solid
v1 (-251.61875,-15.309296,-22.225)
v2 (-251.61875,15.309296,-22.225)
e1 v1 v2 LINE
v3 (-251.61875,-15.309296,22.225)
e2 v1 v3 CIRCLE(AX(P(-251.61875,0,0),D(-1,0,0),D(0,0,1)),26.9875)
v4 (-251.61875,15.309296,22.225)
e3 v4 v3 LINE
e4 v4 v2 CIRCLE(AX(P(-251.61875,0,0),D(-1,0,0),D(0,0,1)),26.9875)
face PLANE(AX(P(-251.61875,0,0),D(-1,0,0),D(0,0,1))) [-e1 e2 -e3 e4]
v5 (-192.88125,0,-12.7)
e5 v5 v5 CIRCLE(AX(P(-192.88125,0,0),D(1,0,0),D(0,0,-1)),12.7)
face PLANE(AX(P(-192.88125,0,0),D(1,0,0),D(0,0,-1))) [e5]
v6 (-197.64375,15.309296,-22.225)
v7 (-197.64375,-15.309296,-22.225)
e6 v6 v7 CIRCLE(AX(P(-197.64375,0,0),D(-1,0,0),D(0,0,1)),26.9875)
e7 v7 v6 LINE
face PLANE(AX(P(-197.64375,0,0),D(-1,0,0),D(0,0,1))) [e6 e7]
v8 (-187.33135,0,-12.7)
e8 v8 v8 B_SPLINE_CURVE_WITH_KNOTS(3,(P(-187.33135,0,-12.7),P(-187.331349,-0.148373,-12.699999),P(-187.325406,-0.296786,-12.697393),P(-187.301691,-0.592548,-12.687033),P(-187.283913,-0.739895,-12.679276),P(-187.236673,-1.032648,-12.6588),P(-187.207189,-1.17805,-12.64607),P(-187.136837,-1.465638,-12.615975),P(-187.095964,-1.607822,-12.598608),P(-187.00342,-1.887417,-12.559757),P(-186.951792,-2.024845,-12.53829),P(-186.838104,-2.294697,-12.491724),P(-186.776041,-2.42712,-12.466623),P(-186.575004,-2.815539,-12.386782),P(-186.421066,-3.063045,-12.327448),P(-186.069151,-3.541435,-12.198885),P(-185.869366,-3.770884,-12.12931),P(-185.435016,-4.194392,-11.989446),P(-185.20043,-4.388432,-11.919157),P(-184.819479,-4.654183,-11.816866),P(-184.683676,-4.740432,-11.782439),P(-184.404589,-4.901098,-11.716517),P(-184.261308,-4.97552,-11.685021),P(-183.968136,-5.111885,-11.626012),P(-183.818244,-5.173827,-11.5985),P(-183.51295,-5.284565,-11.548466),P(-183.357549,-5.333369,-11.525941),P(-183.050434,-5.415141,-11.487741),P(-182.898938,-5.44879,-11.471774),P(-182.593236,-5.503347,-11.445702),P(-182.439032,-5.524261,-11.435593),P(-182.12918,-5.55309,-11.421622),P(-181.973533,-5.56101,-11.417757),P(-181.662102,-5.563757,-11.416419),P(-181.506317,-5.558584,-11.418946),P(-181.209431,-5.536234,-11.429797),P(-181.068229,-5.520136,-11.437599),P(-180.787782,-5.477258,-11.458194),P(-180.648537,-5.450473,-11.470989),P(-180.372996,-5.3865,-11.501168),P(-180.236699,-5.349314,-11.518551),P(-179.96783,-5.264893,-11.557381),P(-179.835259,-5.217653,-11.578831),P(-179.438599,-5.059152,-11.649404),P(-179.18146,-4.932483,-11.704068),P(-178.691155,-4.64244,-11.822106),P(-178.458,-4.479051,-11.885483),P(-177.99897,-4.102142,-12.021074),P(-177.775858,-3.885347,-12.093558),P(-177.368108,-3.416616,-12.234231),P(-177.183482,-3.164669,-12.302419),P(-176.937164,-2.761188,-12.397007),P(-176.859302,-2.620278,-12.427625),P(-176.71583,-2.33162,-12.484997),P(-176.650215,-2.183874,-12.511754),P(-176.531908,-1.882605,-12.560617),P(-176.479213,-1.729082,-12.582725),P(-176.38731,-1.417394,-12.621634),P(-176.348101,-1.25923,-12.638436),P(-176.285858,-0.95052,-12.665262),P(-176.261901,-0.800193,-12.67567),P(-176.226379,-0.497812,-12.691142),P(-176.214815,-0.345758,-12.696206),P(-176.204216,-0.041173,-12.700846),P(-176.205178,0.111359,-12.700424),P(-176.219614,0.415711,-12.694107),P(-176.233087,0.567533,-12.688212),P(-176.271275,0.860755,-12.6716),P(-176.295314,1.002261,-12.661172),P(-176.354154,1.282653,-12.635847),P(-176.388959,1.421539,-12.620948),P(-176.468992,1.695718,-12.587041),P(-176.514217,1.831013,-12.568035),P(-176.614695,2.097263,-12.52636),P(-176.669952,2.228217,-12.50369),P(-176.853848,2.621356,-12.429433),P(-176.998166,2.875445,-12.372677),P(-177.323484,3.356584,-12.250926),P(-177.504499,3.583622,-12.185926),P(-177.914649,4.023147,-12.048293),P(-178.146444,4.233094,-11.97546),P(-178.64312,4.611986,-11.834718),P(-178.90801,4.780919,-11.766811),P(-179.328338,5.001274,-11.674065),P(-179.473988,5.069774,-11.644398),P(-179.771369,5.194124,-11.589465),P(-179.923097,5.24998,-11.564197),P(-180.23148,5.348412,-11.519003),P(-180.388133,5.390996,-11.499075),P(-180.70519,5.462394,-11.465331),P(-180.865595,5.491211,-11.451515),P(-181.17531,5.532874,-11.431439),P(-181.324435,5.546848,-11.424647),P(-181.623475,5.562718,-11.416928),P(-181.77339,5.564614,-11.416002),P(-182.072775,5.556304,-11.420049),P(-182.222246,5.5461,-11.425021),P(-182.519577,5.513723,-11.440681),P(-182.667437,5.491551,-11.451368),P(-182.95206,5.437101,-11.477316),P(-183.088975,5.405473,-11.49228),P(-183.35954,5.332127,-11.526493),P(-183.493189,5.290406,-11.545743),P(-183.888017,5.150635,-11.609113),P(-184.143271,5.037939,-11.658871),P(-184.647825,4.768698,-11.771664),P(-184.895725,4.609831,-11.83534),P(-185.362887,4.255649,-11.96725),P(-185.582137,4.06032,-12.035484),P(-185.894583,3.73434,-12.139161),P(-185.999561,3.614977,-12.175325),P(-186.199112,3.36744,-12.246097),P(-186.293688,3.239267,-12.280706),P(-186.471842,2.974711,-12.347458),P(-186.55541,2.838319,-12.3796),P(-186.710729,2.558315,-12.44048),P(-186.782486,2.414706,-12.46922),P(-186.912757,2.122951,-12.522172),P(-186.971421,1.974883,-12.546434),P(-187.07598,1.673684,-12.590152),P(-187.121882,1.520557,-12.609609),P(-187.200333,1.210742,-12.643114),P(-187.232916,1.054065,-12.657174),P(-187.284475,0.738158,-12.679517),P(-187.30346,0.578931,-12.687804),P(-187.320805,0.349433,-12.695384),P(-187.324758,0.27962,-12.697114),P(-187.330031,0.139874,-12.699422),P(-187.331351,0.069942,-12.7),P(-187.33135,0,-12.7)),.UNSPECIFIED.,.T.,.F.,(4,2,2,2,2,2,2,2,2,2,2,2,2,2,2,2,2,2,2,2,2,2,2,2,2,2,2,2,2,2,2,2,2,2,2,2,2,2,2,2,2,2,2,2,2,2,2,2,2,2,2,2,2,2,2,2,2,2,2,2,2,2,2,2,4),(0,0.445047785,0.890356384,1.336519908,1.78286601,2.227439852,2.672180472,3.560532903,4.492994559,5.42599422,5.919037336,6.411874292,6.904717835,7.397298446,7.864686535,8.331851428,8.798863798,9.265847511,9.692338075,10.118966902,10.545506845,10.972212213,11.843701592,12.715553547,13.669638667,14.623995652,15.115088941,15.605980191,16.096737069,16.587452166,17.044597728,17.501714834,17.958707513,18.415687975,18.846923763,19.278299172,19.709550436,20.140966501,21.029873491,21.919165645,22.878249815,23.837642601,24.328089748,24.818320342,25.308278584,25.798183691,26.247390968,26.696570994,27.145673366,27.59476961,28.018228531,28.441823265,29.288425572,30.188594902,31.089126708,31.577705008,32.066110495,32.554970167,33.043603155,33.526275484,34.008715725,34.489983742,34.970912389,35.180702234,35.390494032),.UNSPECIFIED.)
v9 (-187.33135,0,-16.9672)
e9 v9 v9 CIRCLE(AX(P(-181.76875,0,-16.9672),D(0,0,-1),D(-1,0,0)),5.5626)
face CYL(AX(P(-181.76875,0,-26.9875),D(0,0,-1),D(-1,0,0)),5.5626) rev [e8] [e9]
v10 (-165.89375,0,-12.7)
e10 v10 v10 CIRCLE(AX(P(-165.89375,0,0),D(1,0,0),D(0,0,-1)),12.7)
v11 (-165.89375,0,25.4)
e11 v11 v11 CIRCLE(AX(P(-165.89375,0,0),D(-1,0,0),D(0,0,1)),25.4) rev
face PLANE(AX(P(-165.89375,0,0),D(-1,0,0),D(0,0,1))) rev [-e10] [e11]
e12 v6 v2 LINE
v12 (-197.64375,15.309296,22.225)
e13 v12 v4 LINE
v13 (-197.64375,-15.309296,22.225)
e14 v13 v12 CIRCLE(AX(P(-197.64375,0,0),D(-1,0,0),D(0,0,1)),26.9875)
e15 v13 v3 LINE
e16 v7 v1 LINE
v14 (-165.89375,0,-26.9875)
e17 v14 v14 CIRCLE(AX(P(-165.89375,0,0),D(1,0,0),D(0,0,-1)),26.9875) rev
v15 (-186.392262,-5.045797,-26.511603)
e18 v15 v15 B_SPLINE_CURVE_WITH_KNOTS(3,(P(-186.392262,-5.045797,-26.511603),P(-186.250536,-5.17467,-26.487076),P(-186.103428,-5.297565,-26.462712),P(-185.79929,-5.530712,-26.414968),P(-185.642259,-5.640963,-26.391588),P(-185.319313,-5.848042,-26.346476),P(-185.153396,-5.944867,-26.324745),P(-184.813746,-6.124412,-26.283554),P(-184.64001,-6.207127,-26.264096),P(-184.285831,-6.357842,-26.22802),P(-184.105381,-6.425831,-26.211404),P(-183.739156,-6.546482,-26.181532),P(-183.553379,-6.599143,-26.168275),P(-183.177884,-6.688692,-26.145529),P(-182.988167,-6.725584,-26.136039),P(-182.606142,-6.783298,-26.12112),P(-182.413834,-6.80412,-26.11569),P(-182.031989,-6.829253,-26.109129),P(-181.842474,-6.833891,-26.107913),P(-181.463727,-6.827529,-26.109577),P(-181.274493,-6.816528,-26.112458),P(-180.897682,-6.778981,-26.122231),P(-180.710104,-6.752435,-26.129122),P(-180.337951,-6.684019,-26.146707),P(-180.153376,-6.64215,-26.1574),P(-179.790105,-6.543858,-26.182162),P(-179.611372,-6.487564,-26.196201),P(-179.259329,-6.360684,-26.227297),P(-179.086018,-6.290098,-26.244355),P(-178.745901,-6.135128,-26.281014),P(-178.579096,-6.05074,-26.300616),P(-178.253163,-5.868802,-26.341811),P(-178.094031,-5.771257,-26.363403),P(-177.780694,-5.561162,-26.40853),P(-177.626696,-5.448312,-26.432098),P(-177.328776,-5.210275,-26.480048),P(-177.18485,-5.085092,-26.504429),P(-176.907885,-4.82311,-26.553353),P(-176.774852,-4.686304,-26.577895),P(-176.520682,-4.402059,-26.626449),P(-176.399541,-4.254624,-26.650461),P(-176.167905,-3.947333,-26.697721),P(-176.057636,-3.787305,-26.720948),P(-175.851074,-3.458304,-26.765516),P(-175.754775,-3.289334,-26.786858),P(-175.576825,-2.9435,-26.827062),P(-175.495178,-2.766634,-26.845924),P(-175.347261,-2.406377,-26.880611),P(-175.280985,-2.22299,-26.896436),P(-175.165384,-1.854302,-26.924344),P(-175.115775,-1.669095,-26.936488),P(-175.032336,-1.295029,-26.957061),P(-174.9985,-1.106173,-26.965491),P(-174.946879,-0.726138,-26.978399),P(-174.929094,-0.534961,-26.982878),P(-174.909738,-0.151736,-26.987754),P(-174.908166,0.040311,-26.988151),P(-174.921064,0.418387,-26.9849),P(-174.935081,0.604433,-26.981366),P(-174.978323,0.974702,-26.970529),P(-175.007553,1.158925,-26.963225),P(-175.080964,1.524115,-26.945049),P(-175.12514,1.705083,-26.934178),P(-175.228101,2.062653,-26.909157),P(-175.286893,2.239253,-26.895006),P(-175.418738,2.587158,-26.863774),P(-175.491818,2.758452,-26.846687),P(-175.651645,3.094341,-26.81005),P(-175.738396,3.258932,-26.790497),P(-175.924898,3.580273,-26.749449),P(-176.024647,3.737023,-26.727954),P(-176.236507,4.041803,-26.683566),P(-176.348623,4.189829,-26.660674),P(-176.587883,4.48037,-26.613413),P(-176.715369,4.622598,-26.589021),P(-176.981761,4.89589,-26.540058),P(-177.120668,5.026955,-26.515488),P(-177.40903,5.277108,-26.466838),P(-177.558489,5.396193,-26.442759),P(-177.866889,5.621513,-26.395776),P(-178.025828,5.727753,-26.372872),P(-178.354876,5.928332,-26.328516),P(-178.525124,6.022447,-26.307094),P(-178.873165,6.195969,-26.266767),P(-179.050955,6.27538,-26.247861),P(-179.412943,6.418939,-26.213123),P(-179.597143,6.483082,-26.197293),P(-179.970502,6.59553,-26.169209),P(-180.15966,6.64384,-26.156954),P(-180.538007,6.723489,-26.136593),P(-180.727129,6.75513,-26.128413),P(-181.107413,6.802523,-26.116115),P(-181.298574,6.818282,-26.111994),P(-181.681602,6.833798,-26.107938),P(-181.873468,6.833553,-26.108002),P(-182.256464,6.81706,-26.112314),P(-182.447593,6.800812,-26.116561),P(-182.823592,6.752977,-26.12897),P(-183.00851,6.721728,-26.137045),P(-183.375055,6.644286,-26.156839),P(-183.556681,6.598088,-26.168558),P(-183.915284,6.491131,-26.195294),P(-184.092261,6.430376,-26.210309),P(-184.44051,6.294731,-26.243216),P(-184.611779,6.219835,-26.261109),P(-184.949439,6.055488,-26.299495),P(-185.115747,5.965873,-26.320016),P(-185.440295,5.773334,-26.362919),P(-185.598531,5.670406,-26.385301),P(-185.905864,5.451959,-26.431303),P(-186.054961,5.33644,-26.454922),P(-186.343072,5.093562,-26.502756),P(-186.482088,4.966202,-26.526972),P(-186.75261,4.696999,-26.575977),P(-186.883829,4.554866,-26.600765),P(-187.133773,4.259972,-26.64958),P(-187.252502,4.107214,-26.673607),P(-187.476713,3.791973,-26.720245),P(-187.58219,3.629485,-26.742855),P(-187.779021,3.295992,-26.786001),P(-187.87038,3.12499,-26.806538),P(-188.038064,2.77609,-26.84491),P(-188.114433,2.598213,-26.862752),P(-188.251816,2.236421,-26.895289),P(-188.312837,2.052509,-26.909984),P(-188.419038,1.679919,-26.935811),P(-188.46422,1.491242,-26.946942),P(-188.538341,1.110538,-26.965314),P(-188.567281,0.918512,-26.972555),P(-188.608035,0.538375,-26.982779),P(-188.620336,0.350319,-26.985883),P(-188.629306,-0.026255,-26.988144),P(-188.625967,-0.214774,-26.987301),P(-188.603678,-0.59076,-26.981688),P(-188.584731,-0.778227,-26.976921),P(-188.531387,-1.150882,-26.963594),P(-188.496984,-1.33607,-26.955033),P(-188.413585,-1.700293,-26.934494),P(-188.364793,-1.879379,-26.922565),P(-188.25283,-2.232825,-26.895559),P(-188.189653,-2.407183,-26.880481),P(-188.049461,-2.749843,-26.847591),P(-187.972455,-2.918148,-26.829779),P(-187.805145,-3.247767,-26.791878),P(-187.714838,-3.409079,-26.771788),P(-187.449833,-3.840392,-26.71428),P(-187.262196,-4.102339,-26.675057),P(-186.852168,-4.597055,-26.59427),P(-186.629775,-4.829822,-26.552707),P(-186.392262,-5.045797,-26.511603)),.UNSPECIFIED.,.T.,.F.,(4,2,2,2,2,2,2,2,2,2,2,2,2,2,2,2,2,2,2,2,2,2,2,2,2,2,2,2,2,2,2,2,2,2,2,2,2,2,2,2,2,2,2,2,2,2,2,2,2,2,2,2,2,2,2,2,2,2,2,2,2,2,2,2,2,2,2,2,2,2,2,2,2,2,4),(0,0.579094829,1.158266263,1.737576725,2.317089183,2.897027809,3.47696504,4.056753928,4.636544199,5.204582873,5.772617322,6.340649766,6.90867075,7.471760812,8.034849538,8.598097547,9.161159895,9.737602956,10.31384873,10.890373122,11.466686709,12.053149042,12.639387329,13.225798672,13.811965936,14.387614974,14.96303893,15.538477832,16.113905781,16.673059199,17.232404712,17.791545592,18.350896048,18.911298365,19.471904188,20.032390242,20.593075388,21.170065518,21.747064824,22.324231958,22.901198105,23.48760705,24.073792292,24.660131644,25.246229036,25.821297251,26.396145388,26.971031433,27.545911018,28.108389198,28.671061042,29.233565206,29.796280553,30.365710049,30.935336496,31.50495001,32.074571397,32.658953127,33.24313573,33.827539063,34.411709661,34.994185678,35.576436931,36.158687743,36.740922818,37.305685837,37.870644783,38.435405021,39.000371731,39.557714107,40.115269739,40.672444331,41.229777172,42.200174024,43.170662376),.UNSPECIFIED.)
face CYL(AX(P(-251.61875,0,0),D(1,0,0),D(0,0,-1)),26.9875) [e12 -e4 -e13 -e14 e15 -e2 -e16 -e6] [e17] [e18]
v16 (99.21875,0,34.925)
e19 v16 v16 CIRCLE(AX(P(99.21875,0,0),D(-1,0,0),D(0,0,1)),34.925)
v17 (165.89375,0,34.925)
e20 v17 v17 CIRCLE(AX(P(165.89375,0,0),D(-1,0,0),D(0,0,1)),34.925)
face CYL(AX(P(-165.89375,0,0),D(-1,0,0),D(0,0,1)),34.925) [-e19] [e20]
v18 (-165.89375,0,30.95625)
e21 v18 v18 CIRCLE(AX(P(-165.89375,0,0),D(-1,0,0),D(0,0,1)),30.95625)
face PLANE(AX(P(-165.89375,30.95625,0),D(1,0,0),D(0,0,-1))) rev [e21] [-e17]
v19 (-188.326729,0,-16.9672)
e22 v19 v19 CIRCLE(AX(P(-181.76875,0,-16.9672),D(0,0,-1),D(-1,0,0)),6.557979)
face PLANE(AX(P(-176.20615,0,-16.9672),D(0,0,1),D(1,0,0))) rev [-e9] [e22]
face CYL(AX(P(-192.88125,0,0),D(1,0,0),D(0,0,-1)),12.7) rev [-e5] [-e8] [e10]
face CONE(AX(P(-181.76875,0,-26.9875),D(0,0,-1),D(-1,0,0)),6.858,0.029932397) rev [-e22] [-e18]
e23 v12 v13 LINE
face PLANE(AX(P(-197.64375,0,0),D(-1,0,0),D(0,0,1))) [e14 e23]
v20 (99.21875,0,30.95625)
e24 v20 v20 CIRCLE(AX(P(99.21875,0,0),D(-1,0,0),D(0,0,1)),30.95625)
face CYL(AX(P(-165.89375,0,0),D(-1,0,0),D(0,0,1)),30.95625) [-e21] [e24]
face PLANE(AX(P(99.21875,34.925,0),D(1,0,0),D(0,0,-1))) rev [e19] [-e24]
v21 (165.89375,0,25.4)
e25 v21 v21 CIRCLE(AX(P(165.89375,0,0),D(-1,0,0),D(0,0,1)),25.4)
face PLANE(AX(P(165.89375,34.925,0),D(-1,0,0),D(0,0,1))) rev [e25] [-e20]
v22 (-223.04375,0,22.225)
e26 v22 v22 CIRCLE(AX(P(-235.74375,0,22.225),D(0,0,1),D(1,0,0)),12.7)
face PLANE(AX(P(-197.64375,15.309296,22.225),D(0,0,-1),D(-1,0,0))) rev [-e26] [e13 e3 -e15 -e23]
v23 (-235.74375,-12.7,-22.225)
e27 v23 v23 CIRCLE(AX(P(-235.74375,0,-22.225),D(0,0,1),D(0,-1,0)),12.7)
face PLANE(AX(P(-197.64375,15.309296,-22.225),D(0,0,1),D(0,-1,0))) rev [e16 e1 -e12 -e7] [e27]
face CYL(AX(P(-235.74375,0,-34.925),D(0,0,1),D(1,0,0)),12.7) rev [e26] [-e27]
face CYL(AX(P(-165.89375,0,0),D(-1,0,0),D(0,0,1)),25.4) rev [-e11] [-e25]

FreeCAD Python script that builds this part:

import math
import FreeCAD as App
import Part
import Sketcher

V = App.Vector
Q = App.Units.Quantity


def add_polygon(sketch, points):
    """Adds a closed chain of lines whose ends are joined by coincident constraints."""
    first, n = sketch.GeometryCount, len(points)
    for a, b in zip(points, points[1:] + points[:1]):
        sketch.addGeometry(Part.LineSegment(App.Vector(*a, 0), App.Vector(*b, 0)), False)
    for i in range(n):
        sketch.addConstraint(Sketcher.Constraint("Coincident", first + i, 2, first + (i + 1) % n, 1))

doc = App.newDocument("Part")
body = doc.addObject("PartDesign::Body", "Body")

# Sketch on XY plane
sketch1 = body.newObject("Sketcher::SketchObject", "Sketch")
sketch1.AttachmentSupport = (doc.getObject("XY_Plane"), [""])
sketch1.MapMode = "FlatFace"
add_polygon(sketch1, [(165.9, 34.9), (99.2, 34.9), (99.2, 31), (-165.9, 31), (-165.9, 25.4), (165.9, 25.4)])  # lines 0-5
sketch1.addConstraint([
    Sketcher.Constraint("Horizontal", 0),
    Sketcher.Constraint("Vertical", 1),
    Sketcher.Constraint("Horizontal", 2),
    Sketcher.Constraint("Vertical", 3),
    Sketcher.Constraint("Horizontal", 4),
    Sketcher.Constraint("Vertical", 5),
    Sketcher.Constraint("DistanceY", -1, 1, 3, 2, Q("1 in")),
    Sketcher.Constraint("DistanceX", 0, 2, 0, 1, Q("2.625 in")),
    Sketcher.Constraint("DistanceX", 2, 2, 2, 1, Q("10.4375 in")),
    Sketcher.Constraint("DistanceY", 1, 2, 1, 1, Q("0.15625 in")),
    Sketcher.Constraint("DistanceY", 3, 2, 3, 1, Q("0.21875 in")),
    Sketcher.Constraint("DistanceX", -1, 1, 0, 2, Q("3.90625 in")),
])
revolution = body.newObject("PartDesign::Revolution", "Revolution")
revolution.Profile = sketch1
revolution.ReferenceAxis = (sketch1, ["H_Axis"])
revolution.Angle = 360

# Sketch on YZ plane
sketch2 = body.newObject("Sketcher::SketchObject", "Sketch001")
sketch2.AttachmentSupport = (doc.getObject("YZ_Plane"), [""])
sketch2.MapMode = "FlatFace"
sketch2.AttachmentOffset = App.Placement(V(0, 0, -6.53125 * 25.4), App.Rotation())
sketch2.addGeometry(Part.Circle(V(0, 0, 0), V(0, 0, 1), 27), False)
sketch2.addConstraint([
    Sketcher.Constraint("Coincident", 0, 3, -1, 1),
    Sketcher.Constraint("Diameter", 0, Q("2.125 in")),
])
pad1 = body.newObject("PartDesign::Pad", "Pad")
pad1.Profile = sketch2
pad1.Length = Q("3.375 in")
pad1.Reversed = True

# Sketch on YZ plane
sketch3 = body.newObject("Sketcher::SketchObject", "Sketch002")
sketch3.AttachmentSupport = (doc.getObject("YZ_Plane"), [""])
sketch3.MapMode = "FlatFace"
sketch3.AttachmentOffset = App.Placement(V(0, 0, -9.90625 * 25.4), App.Rotation())
sketch3.addGeometry([
    Part.LineSegment(V(-15, -22, 0), V(15, -22, 0)),
    Part.ArcOfCircle(Part.Circle(V(0, 0, 0), V(0, 0, 1), 27), math.radians(-125), math.radians(-55)),
    Part.LineSegment(V(15, 22, 0), V(-15, 22, 0)),
    Part.ArcOfCircle(Part.Circle(V(0, 0, 0), V(0, 0, 1), 27), math.radians(55), math.radians(125)),
], False)
sketch3.addConstraint([
    Sketcher.Constraint("Coincident", 0, 1, 1, 1),
    Sketcher.Constraint("Coincident", 1, 2, 0, 2),
    Sketcher.Constraint("Coincident", 2, 1, 3, 1),
    Sketcher.Constraint("Coincident", 3, 2, 2, 2),
    Sketcher.Constraint("Horizontal", 0),
    Sketcher.Constraint("Horizontal", 2),
    Sketcher.Constraint("Coincident", 1, 3, -1, 1),
    Sketcher.Constraint("Coincident", 3, 3, -1, 1),
    Sketcher.Constraint("Equal", 1, 3),
    Sketcher.Constraint("Vertical", 1, 2, 2, 1),
    Sketcher.Constraint("Radius", 1, Q("1.0625 in")),
    Sketcher.Constraint("DistanceY", 1, 2, 2, 1, Q("1.75 in")),
])
pocket1 = body.newObject("PartDesign::Pocket", "Pocket")
pocket1.Profile = sketch3
pocket1.Length = Q("2.125 in")
pocket1.Reversed = True

# Sketch on XY plane
sketch4 = body.newObject("Sketcher::SketchObject", "Sketch003")
sketch4.AttachmentSupport = (doc.getObject("XY_Plane"), [""])
sketch4.MapMode = "FlatFace"
sketch4.AttachmentOffset = App.Placement(V(0, 0, 0.875 * 25.4), App.Rotation())
sketch4.addGeometry(Part.Circle(V(-236, 0, 0), V(0, 0, 1), 13), False)
sketch4.addConstraint([
    Sketcher.Constraint("PointOnObject", 0, 3, -1),
    Sketcher.Constraint("Diameter", 0, Q("1 in")),
    Sketcher.Constraint("DistanceX", 0, 3, -1, 1, Q("9.28125 in")),
])
pocket2 = body.newObject("PartDesign::Pocket", "Pocket001")
pocket2.Profile = sketch4
pocket2.Type = "ThroughAll"

# Sketch on YZ plane
sketch5 = body.newObject("Sketcher::SketchObject", "Sketch004")
sketch5.AttachmentSupport = (doc.getObject("YZ_Plane"), [""])
sketch5.MapMode = "FlatFace"
sketch5.AttachmentOffset = App.Placement(V(0, 0, -7.15625 * 25.4), App.Rotation())
add_polygon(sketch5, [(0, -6.6), (0, -27), (6.9, -27), (6.6, -17), (5.6, -17), (5.6, -9.9)])  # lines 0-5
sketch5.addConstraint([
    Sketcher.Constraint("Vertical", 0),
    Sketcher.Constraint("Horizontal", 1),
    Sketcher.Constraint("Horizontal", 3),
    Sketcher.Constraint("Vertical", 4),
    Sketcher.Constraint("PointOnObject", 0, 2, -2),
    Sketcher.Constraint("Angle", 5, Q("149 deg")),
    Sketcher.Constraint("DistanceX", 1, 1, 1, 2, Q("0.27 in")),
    Sketcher.Constraint("DistanceY", 4, 1, 4, 2, Q("0.2775 in")),
    Sketcher.Constraint("DistanceY", 0, 2, -1, 1, Q("1.0625 in")),
    Sketcher.Constraint("DistanceY", 2, 2, -1, 1, Q("0.668 in")),
    Sketcher.Constraint("DistanceX", -1, 1, 3, 2, Q("0.219 in")),
    Sketcher.Constraint("DistanceX", 3, 2, 3, 1, 0.995379),
])
groove = body.newObject("PartDesign::Groove", "Groove")
groove.Profile = sketch5
groove.ReferenceAxis = (sketch5, ["V_Axis"])
groove.Angle = 360

# Sketch on YZ plane
sketch6 = body.newObject("Sketcher::SketchObject", "Sketch005")
sketch6.AttachmentSupport = (doc.getObject("YZ_Plane"), [""])
sketch6.MapMode = "FlatFace"
sketch6.AttachmentOffset = App.Placement(V(0, 0, -6.53125 * 25.4), App.Rotation())
sketch6.addGeometry(Part.Circle(V(0, 0, 0), V(0, 0, 1), 13), False)
sketch6.addConstraint([
    Sketcher.Constraint("Coincident", 0, 3, -1, 1),
    Sketcher.Constraint("Diameter", 0, Q("1 in")),
])
pocket3 = body.newObject("PartDesign::Pocket", "Pocket002")
pocket3.Profile = sketch6
pocket3.Length = Q("1.0625 in")

doc.recompute()
